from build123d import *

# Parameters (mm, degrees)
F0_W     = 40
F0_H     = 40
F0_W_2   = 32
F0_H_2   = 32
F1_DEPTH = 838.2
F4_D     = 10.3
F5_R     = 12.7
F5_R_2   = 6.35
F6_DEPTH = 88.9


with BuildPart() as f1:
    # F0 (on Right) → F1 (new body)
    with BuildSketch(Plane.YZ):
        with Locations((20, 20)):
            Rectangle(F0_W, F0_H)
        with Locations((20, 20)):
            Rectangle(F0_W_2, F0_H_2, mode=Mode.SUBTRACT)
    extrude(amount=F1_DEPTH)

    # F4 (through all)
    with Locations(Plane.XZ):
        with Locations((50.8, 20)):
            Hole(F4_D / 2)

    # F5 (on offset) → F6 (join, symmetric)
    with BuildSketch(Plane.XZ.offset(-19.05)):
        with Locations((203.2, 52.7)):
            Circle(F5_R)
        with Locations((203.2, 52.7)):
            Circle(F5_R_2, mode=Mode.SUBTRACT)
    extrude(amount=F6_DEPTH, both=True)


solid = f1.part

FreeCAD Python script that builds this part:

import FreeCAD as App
import Part
import Sketcher
Q = App.Units.Quantity

doc = App.newDocument("Part")
body = doc.addObject("PartDesign::Body", "Body")
body.AllowCompound = True

# Sketch on YZ plane
sketch1 = doc.addObject("Sketcher::SketchObject", "Sketch")
body.addObject(sketch1)
sketch1.AttachmentSupport = (doc.YZ_Plane, [""])
sketch1.MapMode = "FlatFace"
sketch1.addGeometry(Part.LineSegment(App.Vector(0, 40, 0), App.Vector(0, 0, 0)), False)
sketch1.addGeometry(Part.LineSegment(App.Vector(0, 0, 0), App.Vector(40, 0, 0)), False)
sketch1.addGeometry(Part.LineSegment(App.Vector(40, 0, 0), App.Vector(40, 40, 0)), False)
sketch1.addGeometry(Part.LineSegment(App.Vector(40, 40, 0), App.Vector(0, 40, 0)), False)
sketch1.addGeometry(Part.LineSegment(App.Vector(36, 4, 0), App.Vector(4, 4, 0)), False)
sketch1.addGeometry(Part.LineSegment(App.Vector(4, 4, 0), App.Vector(4, 36, 0)), False)
sketch1.addGeometry(Part.LineSegment(App.Vector(4, 36, 0), App.Vector(36, 36, 0)), False)
sketch1.addGeometry(Part.LineSegment(App.Vector(36, 36, 0), App.Vector(36, 4, 0)), False)
sketch1.addConstraint(Sketcher.Constraint("Coincident", 0, 2, 1, 1))
sketch1.addConstraint(Sketcher.Constraint("Coincident", 1, 2, 2, 1))
sketch1.addConstraint(Sketcher.Constraint("Coincident", 2, 2, 3, 1))
sketch1.addConstraint(Sketcher.Constraint("Coincident", 3, 2, 0, 1))
sketch1.addConstraint(Sketcher.Constraint("Coincident", 4, 2, 5, 1))
sketch1.addConstraint(Sketcher.Constraint("Coincident", 5, 2, 6, 1))
sketch1.addConstraint(Sketcher.Constraint("Coincident", 6, 2, 7, 1))
sketch1.addConstraint(Sketcher.Constraint("Coincident", 7, 2, 4, 1))
sketch1.addConstraint(Sketcher.Constraint("Vertical", 0))
sketch1.addConstraint(Sketcher.Constraint("Horizontal", 1))
sketch1.addConstraint(Sketcher.Constraint("Vertical", 2))
sketch1.addConstraint(Sketcher.Constraint("Horizontal", 3))
sketch1.addConstraint(Sketcher.Constraint("Horizontal", 4))
sketch1.addConstraint(Sketcher.Constraint("Vertical", 5))
sketch1.addConstraint(Sketcher.Constraint("Horizontal", 6))
sketch1.addConstraint(Sketcher.Constraint("Vertical", 7))
sketch1.addConstraint(Sketcher.Constraint("Coincident", 0, 2, -1, 1))
sketch1.addConstraint(Sketcher.Constraint("Equal", 3, 0))
sketch1.addConstraint(Sketcher.Constraint("Equal", 6, 5))
sketch1.addConstraint(Sketcher.Constraint("DistanceX", 1, 1, 1, 2, 40.0))
sketch1.addConstraint(Sketcher.Constraint("DistanceX", 4, 2, 4, 1, 32.0))
sketch1.addConstraint(Sketcher.Constraint("DistanceX", -1, 1, 4, 2, 4.0))
sketch1.addConstraint(Sketcher.Constraint("DistanceY", -1, 1, 4, 2, 4.0))
pad1 = doc.addObject("PartDesign::Pad", "Pad")
body.addObject(pad1)
pad1.Profile = sketch1
pad1.Length = Q("33 in")

# Sketch on XZ plane
sketch2 = doc.addObject("Sketcher::SketchObject", "Sketch001")
body.addObject(sketch2)
sketch2.AttachmentSupport = (doc.XZ_Plane, [""])
sketch2.MapMode = "FlatFace"
sketch2.addGeometry(Part.Circle(App.Vector(51, 20, 0), App.Vector(0, 0, 1), 5), False)
sketch2.addConstraint(Sketcher.Constraint("DistanceX", -1, 1, 0, 3, Q("2 in")))
sketch2.addConstraint(Sketcher.Constraint("Diameter", 0, 10.3))
sketch2.addConstraint(Sketcher.Constraint("DistanceY", -1, 1, 0, 3, 20.0))
doc.recompute()
hole = doc.addObject("PartDesign::Hole", "Hole")
body.addObject(hole)
hole.Profile = sketch2
hole.ThreadType = "None"
hole.Diameter = 10.3
hole.DepthType = "ThroughAll"

# Sketch on XZ plane
sketch3 = doc.addObject("Sketcher::SketchObject", "Sketch002")
body.addObject(sketch3)
sketch3.AttachmentSupport = (doc.XZ_Plane, [""])
sketch3.MapMode = "FlatFace"
sketch3.AttachmentOffset = App.Placement(App.Vector(0, 0, -0.75 * 25.4), App.Rotation())
sketch3.addGeometry(Part.Circle(App.Vector(203, 53, 0), App.Vector(0, 0, 1), 13), False)
sketch3.addGeometry(Part.Circle(App.Vector(203, 53, 0), App.Vector(0, 0, 1), 6), False)
sketch3.addConstraint(Sketcher.Constraint("Coincident", 1, 3, 0, 3))
sketch3.addConstraint(Sketcher.Constraint("Diameter", 0, Q("1 in")))
sketch3.addConstraint(Sketcher.Constraint("Diameter", 1, Q("0.5 in")))
sketch3.addConstraint(Sketcher.Constraint("DistanceX", -1, 1, 0, 3, Q("8 in")))
sketch3.addConstraint(Sketcher.Constraint("DistanceY", -1, 1, 0, 3, 52.7))
pad2 = doc.addObject("PartDesign::Pad", "Pad001")
body.addObject(pad2)
pad2.Profile = sketch3
pad2.Length = Q("7 in")
pad2.Midplane = True

doc.recompute()
